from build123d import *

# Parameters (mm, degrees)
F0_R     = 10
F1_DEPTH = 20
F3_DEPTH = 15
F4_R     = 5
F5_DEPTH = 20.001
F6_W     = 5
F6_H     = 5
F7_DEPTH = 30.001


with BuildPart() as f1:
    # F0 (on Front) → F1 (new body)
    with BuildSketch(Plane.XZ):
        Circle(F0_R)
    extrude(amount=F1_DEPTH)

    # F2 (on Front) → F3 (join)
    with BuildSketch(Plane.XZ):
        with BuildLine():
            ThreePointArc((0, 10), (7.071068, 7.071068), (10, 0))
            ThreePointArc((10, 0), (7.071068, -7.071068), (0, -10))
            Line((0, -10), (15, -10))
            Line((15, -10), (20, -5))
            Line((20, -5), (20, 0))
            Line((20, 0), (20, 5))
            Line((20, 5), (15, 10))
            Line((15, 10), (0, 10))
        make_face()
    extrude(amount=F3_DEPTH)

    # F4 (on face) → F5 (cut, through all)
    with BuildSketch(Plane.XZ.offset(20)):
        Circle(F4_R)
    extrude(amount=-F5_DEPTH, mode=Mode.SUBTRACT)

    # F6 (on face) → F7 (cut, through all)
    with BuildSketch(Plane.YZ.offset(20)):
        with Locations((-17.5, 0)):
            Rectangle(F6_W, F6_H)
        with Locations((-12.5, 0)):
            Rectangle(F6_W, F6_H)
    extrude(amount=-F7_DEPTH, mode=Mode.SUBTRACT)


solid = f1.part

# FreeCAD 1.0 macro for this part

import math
import FreeCAD as App
import Part
import Sketcher

V = App.Vector

doc = App.newDocument("Part")
body = doc.addObject("PartDesign::Body", "Body")

# Sketch on XZ plane
sketch1 = body.newObject("Sketcher::SketchObject", "Sketch")
sketch1.AttachmentSupport = (doc.getObject("XZ_Plane"), [""])
sketch1.MapMode = "FlatFace"
sketch1.addGeometry(Part.Circle(V(0, 0, 0), V(0, 0, 1), 10), False)
sketch1.addConstraint([
    Sketcher.Constraint("Coincident", 0, 3, -1, 1),
    Sketcher.Constraint("Diameter", 0, 20.0),
])
pad1 = body.newObject("PartDesign::Pad", "Pad")
pad1.Profile = sketch1
pad1.Length = 20

# Sketch on XZ plane
sketch2 = body.newObject("Sketcher::SketchObject", "Sketch001")
sketch2.AttachmentSupport = (doc.getObject("XZ_Plane"), [""])
sketch2.MapMode = "FlatFace"
sketch2.addGeometry([
    Part.ArcOfCircle(Part.Circle(V(0, 0, 0), V(0, 0, 1), 10), math.radians(0), math.radians(90)),  # 0
    Part.ArcOfCircle(Part.Circle(V(0, 0, 0), V(0, 0, 1), 10), math.radians(-90), math.radians(0)),  # 1
    Part.LineSegment(V(0, -10, 0), V(15, -10, 0)),  # 2
    Part.LineSegment(V(15, -10, 0), V(20, -5, 0)),  # 3
    Part.LineSegment(V(20, -5, 0), V(20, 5, 0)),  # 4
    Part.LineSegment(V(20, 5, 0), V(15, 10, 0)),  # 5
    Part.LineSegment(V(15, 10, 0), V(0, 10, 0)),  # 6
], False)
sketch2.addConstraint([
    Sketcher.Constraint("Tangent", 0, 1, 1, 2),
    Sketcher.Constraint("Tangent", 1, 1, 2, 1),
    Sketcher.Constraint("Coincident", 2, 2, 3, 1),
    Sketcher.Constraint("Coincident", 3, 2, 4, 1),
    Sketcher.Constraint("Coincident", 4, 2, 5, 1),
    Sketcher.Constraint("Coincident", 5, 2, 6, 1),
    Sketcher.Constraint("Tangent", 6, 2, 0, 2),
    Sketcher.Constraint("Horizontal", 2),
    Sketcher.Constraint("Vertical", 4),
    Sketcher.Constraint("Horizontal", 6),
    Sketcher.Constraint("Coincident", 0, 3, -1, 1),
    Sketcher.Constraint("Equal", 0, 1),
    Sketcher.Constraint("PointOnObject", 0, 1, -1),
    Sketcher.Constraint("Perpendicular", 3, 5),
    Sketcher.Constraint("Vertical", 2, 2, 5, 2),
    Sketcher.Constraint("Equal", 3, 5),
    Sketcher.Constraint("Radius", 0, 9.999999),
    Sketcher.Constraint("DistanceX", 2, 1, 2, 2, 15.0),
    Sketcher.Constraint("DistanceY", 4, 1, 4, 2, 10.0),
])
pad2 = body.newObject("PartDesign::Pad", "Pad001")
pad2.Profile = sketch2
pad2.Length = 15

# Sketch on XZ plane
sketch3 = body.newObject("Sketcher::SketchObject", "Sketch002")
sketch3.AttachmentSupport = (doc.getObject("XZ_Plane"), [""])
sketch3.MapMode = "FlatFace"
sketch3.AttachmentOffset = App.Placement(V(0, 0, 20), App.Rotation())
sketch3.addGeometry(Part.Circle(V(0, 0, 0), V(0, 0, 1), 5), False)
sketch3.addConstraint([
    Sketcher.Constraint("Coincident", 0, 3, -1, 1),
    Sketcher.Constraint("Diameter", 0, 10.0),
])
pocket1 = body.newObject("PartDesign::Pocket", "Pocket")
pocket1.Profile = sketch3
pocket1.Type = "ThroughAll"

# Sketch on YZ plane
sketch4 = body.newObject("Sketcher::SketchObject", "Sketch003")
sketch4.AttachmentSupport = (doc.getObject("YZ_Plane"), [""])
sketch4.MapMode = "FlatFace"
sketch4.AttachmentOffset = App.Placement(V(0, 0, 20), App.Rotation())
sketch4.addGeometry([
    Part.LineSegment(V(-20, 2, 0), V(-20, -2, 0)),
    Part.LineSegment(V(-20, -2, 0), V(-10, -2, 0)),
    Part.LineSegment(V(-10, -2, 0), V(-10, 2, 0)),
    Part.LineSegment(V(-10, 2, 0), V(-20, 2, 0)),
], False)
sketch4.addConstraint([
    Sketcher.Constraint("Coincident", 0, 2, 1, 1),
    Sketcher.Constraint("Coincident", 1, 2, 2, 1),
    Sketcher.Constraint("Coincident", 2, 2, 3, 1),
    Sketcher.Constraint("Coincident", 3, 2, 0, 1),
    Sketcher.Constraint("Vertical", 0),
    Sketcher.Constraint("Horizontal", 1),
    Sketcher.Constraint("Vertical", 2),
    Sketcher.Constraint("Horizontal", 3),
    Sketcher.Constraint("DistanceX", 1, 1, 1, 2, 10.0),
    Sketcher.Constraint("DistanceY", 0, 2, 0, 1, 5.0),
    Sketcher.Constraint("DistanceX", 0, 2, -1, 1, 20.0),
    Sketcher.Constraint("DistanceY", 0, 2, -1, 1, 2.5),
])
pocket2 = body.newObject("PartDesign::Pocket", "Pocket001")
pocket2.Profile = sketch4
pocket2.Type = "ThroughAll"

doc.recompute()
